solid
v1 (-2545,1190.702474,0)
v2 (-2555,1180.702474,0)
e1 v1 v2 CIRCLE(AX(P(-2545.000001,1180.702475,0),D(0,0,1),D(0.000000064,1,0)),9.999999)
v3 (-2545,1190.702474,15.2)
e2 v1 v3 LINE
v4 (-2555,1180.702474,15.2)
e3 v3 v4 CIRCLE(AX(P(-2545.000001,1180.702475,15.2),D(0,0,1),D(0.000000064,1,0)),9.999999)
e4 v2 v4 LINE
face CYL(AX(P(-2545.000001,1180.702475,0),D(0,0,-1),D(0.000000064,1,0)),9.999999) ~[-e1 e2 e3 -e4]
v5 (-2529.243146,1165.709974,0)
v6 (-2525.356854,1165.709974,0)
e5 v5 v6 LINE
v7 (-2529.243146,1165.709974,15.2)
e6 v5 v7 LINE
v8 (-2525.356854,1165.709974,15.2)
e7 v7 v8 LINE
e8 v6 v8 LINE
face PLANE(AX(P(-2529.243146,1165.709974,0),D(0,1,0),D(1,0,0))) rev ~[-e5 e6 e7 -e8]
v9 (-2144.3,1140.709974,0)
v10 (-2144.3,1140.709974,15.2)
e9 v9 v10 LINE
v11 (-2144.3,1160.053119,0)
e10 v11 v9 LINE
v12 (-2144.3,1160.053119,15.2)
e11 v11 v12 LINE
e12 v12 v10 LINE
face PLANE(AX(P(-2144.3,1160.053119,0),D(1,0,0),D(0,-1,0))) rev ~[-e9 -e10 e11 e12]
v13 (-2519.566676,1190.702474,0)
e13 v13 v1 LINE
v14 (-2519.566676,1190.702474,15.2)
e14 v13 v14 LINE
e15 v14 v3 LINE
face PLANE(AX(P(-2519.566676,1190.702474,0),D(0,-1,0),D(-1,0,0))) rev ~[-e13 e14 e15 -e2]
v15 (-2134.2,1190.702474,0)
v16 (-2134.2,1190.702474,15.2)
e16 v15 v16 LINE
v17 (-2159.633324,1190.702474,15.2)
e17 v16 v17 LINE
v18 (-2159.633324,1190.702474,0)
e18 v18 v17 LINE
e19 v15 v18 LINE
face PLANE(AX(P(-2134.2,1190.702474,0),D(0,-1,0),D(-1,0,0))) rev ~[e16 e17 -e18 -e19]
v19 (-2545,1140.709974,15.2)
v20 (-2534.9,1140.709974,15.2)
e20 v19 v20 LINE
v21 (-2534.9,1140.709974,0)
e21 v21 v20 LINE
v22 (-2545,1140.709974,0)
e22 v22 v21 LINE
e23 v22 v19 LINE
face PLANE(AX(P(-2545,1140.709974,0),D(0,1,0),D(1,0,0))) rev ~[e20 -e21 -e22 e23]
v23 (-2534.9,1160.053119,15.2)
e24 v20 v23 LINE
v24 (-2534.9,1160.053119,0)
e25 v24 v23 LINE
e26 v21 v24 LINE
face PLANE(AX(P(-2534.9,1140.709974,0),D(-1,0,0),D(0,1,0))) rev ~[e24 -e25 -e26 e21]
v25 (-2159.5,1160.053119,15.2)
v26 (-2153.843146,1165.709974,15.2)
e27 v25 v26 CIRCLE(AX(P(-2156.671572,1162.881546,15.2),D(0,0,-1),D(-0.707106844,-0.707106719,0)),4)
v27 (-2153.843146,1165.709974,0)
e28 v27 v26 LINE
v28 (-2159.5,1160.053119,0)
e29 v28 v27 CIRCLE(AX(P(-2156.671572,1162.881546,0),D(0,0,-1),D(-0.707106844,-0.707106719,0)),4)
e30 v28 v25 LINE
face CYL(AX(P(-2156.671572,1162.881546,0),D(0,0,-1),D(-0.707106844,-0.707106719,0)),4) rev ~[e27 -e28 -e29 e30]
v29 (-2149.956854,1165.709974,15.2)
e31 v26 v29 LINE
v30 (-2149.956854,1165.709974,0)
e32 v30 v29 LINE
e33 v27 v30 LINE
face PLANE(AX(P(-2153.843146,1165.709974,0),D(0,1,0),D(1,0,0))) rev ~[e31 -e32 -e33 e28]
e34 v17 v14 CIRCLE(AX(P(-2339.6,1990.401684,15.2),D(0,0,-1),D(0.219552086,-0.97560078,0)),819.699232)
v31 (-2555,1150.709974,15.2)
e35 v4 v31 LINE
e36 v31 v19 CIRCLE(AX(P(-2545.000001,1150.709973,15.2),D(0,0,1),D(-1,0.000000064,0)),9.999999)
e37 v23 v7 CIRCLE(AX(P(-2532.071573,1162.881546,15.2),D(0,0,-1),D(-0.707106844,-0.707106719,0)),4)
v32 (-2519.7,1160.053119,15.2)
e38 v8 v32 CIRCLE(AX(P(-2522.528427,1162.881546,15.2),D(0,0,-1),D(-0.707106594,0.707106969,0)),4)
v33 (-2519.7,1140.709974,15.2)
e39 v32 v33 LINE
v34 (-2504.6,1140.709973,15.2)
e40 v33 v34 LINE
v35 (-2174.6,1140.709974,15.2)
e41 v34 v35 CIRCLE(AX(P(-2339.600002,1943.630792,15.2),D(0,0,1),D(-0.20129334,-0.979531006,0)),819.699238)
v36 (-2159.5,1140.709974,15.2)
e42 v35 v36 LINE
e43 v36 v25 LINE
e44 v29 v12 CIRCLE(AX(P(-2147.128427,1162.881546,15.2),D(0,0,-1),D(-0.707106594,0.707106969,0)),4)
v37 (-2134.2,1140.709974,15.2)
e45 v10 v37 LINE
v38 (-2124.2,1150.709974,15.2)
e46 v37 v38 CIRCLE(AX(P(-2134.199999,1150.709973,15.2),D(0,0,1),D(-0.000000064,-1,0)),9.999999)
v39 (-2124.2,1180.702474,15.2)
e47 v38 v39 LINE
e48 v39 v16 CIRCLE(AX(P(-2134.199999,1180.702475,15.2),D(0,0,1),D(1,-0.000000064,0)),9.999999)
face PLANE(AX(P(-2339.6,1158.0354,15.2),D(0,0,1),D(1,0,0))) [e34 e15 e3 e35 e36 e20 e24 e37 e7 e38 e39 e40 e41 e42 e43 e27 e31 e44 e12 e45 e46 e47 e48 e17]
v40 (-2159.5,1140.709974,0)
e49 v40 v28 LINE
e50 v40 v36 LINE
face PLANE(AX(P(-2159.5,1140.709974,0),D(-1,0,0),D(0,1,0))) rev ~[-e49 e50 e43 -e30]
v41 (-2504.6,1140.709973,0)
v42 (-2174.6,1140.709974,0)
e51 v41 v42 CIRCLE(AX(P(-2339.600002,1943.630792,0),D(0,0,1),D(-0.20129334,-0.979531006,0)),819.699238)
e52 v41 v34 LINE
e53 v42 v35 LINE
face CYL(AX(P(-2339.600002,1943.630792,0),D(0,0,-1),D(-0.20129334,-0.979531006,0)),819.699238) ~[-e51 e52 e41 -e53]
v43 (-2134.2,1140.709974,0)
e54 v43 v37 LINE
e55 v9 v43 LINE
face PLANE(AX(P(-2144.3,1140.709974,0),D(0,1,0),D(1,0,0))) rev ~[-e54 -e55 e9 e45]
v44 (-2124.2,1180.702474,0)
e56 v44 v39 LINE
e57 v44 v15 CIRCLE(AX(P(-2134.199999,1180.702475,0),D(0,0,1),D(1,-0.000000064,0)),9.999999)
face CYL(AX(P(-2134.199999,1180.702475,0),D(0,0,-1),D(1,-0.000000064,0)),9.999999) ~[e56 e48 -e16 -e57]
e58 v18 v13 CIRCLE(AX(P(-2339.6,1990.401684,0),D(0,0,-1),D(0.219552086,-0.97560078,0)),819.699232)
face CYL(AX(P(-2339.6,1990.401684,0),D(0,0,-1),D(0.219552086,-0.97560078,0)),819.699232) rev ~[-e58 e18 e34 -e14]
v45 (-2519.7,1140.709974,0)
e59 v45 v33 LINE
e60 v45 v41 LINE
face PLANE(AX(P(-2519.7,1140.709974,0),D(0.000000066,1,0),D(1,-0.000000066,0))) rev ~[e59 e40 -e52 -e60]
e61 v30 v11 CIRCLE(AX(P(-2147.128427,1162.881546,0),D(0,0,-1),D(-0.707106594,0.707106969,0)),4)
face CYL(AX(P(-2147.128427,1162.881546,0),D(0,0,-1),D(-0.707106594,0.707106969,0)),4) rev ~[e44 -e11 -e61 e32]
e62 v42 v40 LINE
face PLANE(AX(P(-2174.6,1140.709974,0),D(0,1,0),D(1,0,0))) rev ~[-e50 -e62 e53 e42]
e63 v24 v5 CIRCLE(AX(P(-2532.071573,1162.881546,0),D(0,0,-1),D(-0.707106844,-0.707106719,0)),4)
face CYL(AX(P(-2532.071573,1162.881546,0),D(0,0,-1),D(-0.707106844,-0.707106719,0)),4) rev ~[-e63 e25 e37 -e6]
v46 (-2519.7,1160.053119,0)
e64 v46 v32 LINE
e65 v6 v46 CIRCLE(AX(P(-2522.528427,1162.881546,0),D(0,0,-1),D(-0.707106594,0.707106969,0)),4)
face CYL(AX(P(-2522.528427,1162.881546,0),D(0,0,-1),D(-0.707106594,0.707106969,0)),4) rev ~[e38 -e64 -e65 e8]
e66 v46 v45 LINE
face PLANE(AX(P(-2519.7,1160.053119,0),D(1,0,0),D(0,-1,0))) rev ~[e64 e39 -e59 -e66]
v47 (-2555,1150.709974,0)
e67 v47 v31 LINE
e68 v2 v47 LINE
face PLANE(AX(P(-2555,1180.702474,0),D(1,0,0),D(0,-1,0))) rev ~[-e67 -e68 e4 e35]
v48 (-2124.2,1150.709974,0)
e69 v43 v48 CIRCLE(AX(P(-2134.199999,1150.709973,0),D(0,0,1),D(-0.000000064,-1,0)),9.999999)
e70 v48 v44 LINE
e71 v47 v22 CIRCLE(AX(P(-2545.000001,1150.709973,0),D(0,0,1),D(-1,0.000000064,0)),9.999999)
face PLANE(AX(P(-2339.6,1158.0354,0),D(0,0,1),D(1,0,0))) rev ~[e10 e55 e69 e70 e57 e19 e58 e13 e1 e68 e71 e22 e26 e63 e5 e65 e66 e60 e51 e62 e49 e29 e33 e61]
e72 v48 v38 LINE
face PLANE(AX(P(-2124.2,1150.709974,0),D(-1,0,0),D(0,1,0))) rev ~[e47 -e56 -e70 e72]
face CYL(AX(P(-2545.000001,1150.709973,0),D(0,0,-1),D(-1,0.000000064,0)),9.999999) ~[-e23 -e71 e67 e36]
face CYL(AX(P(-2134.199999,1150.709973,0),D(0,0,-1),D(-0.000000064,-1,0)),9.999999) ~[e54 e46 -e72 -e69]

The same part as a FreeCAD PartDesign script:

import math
import FreeCAD as App
import Part
import Sketcher

V = App.Vector

doc = App.newDocument("Part")
body = doc.addObject("PartDesign::Body", "Body")

# Sketch on XY plane
sketch1 = body.newObject("Sketcher::SketchObject", "Sketch")
sketch1.AttachmentSupport = (doc.getObject("XY_Plane"), [""])
sketch1.MapMode = "FlatFace"
sketch1.addGeometry([
    Part.ArcOfCircle(Part.Circle(V(-2545, 1180.7, 0), V(0, 0, 1), 10), math.radians(90), math.radians(180)),  # 0
    Part.LineSegment(V(-2555, 1180.7, 0), V(-2555, 1150.7, 0)),  # 1
    Part.ArcOfCircle(Part.Circle(V(-2545, 1150.7, 0), V(0, 0, 1), 10), math.radians(180), math.radians(270)),  # 2
    Part.LineSegment(V(-2545, 1140.7, 0), V(-2534.9, 1140.7, 0)),  # 3
    Part.LineSegment(V(-2534.9, 1140.7, 0), V(-2534.9, 1160.1, 0)),  # 4
    Part.ArcOfCircle(Part.Circle(V(-2532.1, 1162.9, 0), V(0, 0, 1), 4), math.radians(45), math.radians(225)),  # 5
    Part.LineSegment(V(-2529.2, 1165.7, 0), V(-2525.4, 1165.7, 0)),  # 6
    Part.ArcOfCircle(Part.Circle(V(-2522.5, 1162.9, 0), V(0, 0, 1), 4), math.radians(-45), math.radians(135)),  # 7
    Part.LineSegment(V(-2519.7, 1160.1, 0), V(-2519.7, 1140.7, 0)),  # 8
    Part.LineSegment(V(-2519.7, 1140.7, 0), V(-2504.6, 1140.7, 0)),  # 9
    Part.ArcOfCircle(Part.Circle(V(-2339.6, 1943.6, 0), V(0, 0, 1), 819.7), math.radians(-102), math.radians(-78)),  # 10
    Part.LineSegment(V(-2174.6, 1140.7, 0), V(-2159.5, 1140.7, 0)),  # 11
    Part.LineSegment(V(-2159.5, 1140.7, 0), V(-2159.5, 1160.1, 0)),  # 12
    Part.ArcOfCircle(Part.Circle(V(-2156.7, 1162.9, 0), V(0, 0, 1), 4), math.radians(45), math.radians(225)),  # 13
    Part.LineSegment(V(-2153.8, 1165.7, 0), V(-2150, 1165.7, 0)),  # 14
    Part.ArcOfCircle(Part.Circle(V(-2147.1, 1162.9, 0), V(0, 0, 1), 4), math.radians(-45), math.radians(135)),  # 15
    Part.LineSegment(V(-2144.3, 1160.1, 0), V(-2144.3, 1140.7, 0)),  # 16
    Part.LineSegment(V(-2144.3, 1140.7, 0), V(-2134.2, 1140.7, 0)),  # 17
    Part.ArcOfCircle(Part.Circle(V(-2134.2, 1150.7, 0), V(0, 0, 1), 10), math.radians(-90), math.radians(0)),  # 18
    Part.LineSegment(V(-2124.2, 1150.7, 0), V(-2124.2, 1180.7, 0)),  # 19
    Part.ArcOfCircle(Part.Circle(V(-2134.2, 1180.7, 0), V(0, 0, 1), 10), math.radians(0), math.radians(90)),  # 20
    Part.LineSegment(V(-2134.2, 1190.7, 0), V(-2159.6, 1190.7, 0)),  # 21
    Part.ArcOfCircle(Part.Circle(V(-2339.6, 1990.4, 0), V(0, 0, 1), 819.7), math.radians(-103), math.radians(-77)),  # 22
    Part.LineSegment(V(-2519.6, 1190.7, 0), V(-2545, 1190.7, 0)),  # 23
], False)
sketch1.addConstraint([
    Sketcher.Constraint("Tangent", 0, 2, 1, 1),
    Sketcher.Constraint("Tangent", 1, 2, 2, 1),
    Sketcher.Constraint("Tangent", 2, 2, 3, 1),
    Sketcher.Constraint("Coincident", 3, 2, 4, 1),
    Sketcher.Constraint("Coincident", 4, 2, 5, 2),
    Sketcher.Constraint("Coincident", 5, 1, 6, 1),
    Sketcher.Constraint("Coincident", 6, 2, 7, 2),
    Sketcher.Constraint("Coincident", 7, 1, 8, 1),
    Sketcher.Constraint("Coincident", 8, 2, 9, 1),
    Sketcher.Constraint("Coincident", 9, 2, 10, 1),
    Sketcher.Constraint("Coincident", 10, 2, 11, 1),
    Sketcher.Constraint("Coincident", 11, 2, 12, 1),
    Sketcher.Constraint("Coincident", 12, 2, 13, 2),
    Sketcher.Constraint("Coincident", 13, 1, 14, 1),
    Sketcher.Constraint("Coincident", 14, 2, 15, 2),
    Sketcher.Constraint("Coincident", 15, 1, 16, 1),
    Sketcher.Constraint("Coincident", 16, 2, 17, 1),
    Sketcher.Constraint("Tangent", 17, 2, 18, 1),
    Sketcher.Constraint("Tangent", 18, 2, 19, 1),
    Sketcher.Constraint("Tangent", 19, 2, 20, 1),
    Sketcher.Constraint("Tangent", 20, 2, 21, 1),
    Sketcher.Constraint("Coincident", 21, 2, 22, 2),
    Sketcher.Constraint("Coincident", 22, 1, 23, 1),
    Sketcher.Constraint("Tangent", 23, 2, 0, 1),
    Sketcher.Constraint("Vertical", 1),
    Sketcher.Constraint("Horizontal", 3),
    Sketcher.Constraint("Vertical", 4),
    Sketcher.Constraint("Horizontal", 6),
    Sketcher.Constraint("Vertical", 8),
    Sketcher.Constraint("Horizontal", 9),
    Sketcher.Constraint("Horizontal", 11),
    Sketcher.Constraint("Vertical", 12),
    Sketcher.Constraint("Horizontal", 14),
    Sketcher.Constraint("Vertical", 16),
    Sketcher.Constraint("Horizontal", 17),
    Sketcher.Constraint("Vertical", 19),
    Sketcher.Constraint("Horizontal", 21),
    Sketcher.Constraint("Horizontal", 23),
    Sketcher.Constraint("Equal", 0, 2),
    Sketcher.Constraint("Equal", 5, 7),
    Sketcher.Constraint("Equal", 7, 13),
    Sketcher.Constraint("Equal", 13, 15),
    Sketcher.Constraint("Equal", 2, 18),
    Sketcher.Constraint("Equal", 18, 20),
    Sketcher.Constraint("Horizontal", 5, 3, 7, 3),
    Sketcher.Constraint("Horizontal", 7, 3, 13, 3),
    Sketcher.Constraint("Horizontal", 13, 3, 15, 3),
    Sketcher.Constraint("Horizontal", 2, 3, 18, 3),
    Sketcher.Constraint("Horizontal", 0, 3, 20, 3),
    Sketcher.Constraint("Horizontal", 4, 2, 7, 1),
    Sketcher.Constraint("Horizontal", 3, 2, 8, 2),
    Sketcher.Constraint("Horizontal", 9, 2, 10, 2),
    Sketcher.Constraint("Horizontal", 7, 1, 12, 2),
    Sketcher.Constraint("Horizontal", 6, 2, 13, 1),
    Sketcher.Constraint("Horizontal", 12, 2, 15, 1),
    Sketcher.Constraint("Equal", 9, 11),
    Sketcher.Constraint("Equal", 6, 14),
    Sketcher.Constraint("Equal", 3, 17),
    Sketcher.Constraint("Equal", 21, 23),
    Sketcher.Constraint("Radius", 0, 9.999999),
    Sketcher.Constraint("Radius", 5, 4.0),
    Sketcher.Constraint("DistanceX", 3, 1, 3, 2, 10.1),
    Sketcher.Constraint("DistanceX", 9, 1, 9, 2, 15.1),
    Sketcher.Constraint("DistanceX", 0, 3, -1, 1, 2545.000001),
    Sketcher.Constraint("DistanceY", 2, 3, 5, 1, 15.000001),
    Sketcher.Constraint("DistanceX", 18, 3, -1, 1, 2134.199999),
    Sketcher.Constraint("DistanceX", 7, 1, -1, 1, 2519.7),
    Sketcher.Constraint("Radius", 10, 819.699238),
    Sketcher.Constraint("DistanceY", 1, 2, 1, 1, 29.9925),
    Sketcher.Constraint("Radius", 22, 819.699232),
    Sketcher.Constraint("DistanceX", 6, 1, 6, 2, 3.886292),
    Sketcher.Constraint("DistanceX", 21, 2, 21, 1, 25.433324),
    Sketcher.Constraint("DistanceY", -1, 1, 4, 2, 1160.053119),
    Sketcher.Constraint("DistanceX", 2, 3, 5, 3, 12.928428),
])
pad1 = body.newObject("PartDesign::Pad", "Pad")
pad1.Profile = sketch1
pad1.Length = 15.2

doc.recompute()
